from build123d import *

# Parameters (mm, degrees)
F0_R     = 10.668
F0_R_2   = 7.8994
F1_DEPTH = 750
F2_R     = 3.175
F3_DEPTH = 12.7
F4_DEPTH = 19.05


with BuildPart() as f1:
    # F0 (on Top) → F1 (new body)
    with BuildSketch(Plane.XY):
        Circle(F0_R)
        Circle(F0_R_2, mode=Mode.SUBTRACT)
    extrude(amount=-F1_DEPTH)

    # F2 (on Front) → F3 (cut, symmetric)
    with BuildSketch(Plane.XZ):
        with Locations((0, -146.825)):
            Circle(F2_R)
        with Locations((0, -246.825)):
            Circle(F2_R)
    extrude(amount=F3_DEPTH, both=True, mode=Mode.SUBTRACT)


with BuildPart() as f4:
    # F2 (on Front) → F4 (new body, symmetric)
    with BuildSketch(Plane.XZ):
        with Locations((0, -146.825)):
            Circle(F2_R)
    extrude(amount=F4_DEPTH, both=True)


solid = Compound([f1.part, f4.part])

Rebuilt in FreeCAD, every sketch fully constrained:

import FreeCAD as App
import Part
import Sketcher
from FreeCAD import Vector
Q = App.Units.Quantity

doc = App.newDocument("Part")
body = doc.addObject("PartDesign::Body", "Body")

# Sketch on XY plane
sketch1 = body.newObject("Sketcher::SketchObject", "Sketch")
sketch1.AttachmentSupport = (doc.getObject("XY_Plane"), [""])
sketch1.MapMode = "FlatFace"
sketch1.addGeometry([
    Part.Circle(Vector(0, 0, 0), Vector(0, 0, 1), 11),
    Part.Circle(Vector(0, 0, 0), Vector(0, 0, 1), 8),
], False)
sketch1.addConstraint([
    Sketcher.Constraint("Coincident", 0, 3, -1, 1),
    Sketcher.Constraint("Coincident", 1, 3, -1, 1),
    Sketcher.Constraint("Diameter", 0, Q("0.84 in")),
    Sketcher.Constraint("Diameter", 1, Q("0.622 in")),
])
pad1 = body.newObject("PartDesign::Pad", "Pad")
pad1.Profile = sketch1
pad1.Length = 750
pad1.Reversed = True

# Sketch on XZ plane
sketch2 = body.newObject("Sketcher::SketchObject", "Sketch001")
sketch2.AttachmentSupport = (doc.getObject("XZ_Plane"), [""])
sketch2.MapMode = "FlatFace"
sketch2.addGeometry([
    Part.Circle(Vector(0, -146.8, 0), Vector(0, 0, 1), 3.2),
    Part.Circle(Vector(0, -246.8, 0), Vector(0, 0, 1), 3.2),
], False)
sketch2.addConstraint([
    Sketcher.Constraint("Equal", 0, 1),
    Sketcher.Constraint("PointOnObject", 0, 3, -2),
    Sketcher.Constraint("PointOnObject", 1, 3, -2),
    Sketcher.Constraint("Diameter", 0, Q("0.25 in")),
    Sketcher.Constraint("DistanceY", 0, 3, -1, 1, Q("146.825 mm")),
    Sketcher.Constraint("DistanceY", 1, 3, -1, 1, Q("246.825 mm")),
])
pocket1 = body.newObject("PartDesign::Pocket", "Pocket")
pocket1.Profile = sketch2
pocket1.Length = Q("1 in")
pocket1.Midplane = True
body2 = doc.addObject("PartDesign::Body", "Body001")

# Sketch on XZ plane
sketch3 = body2.newObject("Sketcher::SketchObject", "Sketch002")
sketch3.AttachmentSupport = (doc.getObject("XZ_Plane001"), [""])
sketch3.MapMode = "FlatFace"
sketch3.addGeometry(Part.Circle(Vector(0, -146.8, 0), Vector(0, 0, 1), 3.2), False)
sketch3.addConstraint([
    Sketcher.Constraint("PointOnObject", 0, 3, -2),
    Sketcher.Constraint("Diameter", 0, Q("0.25 in")),
    Sketcher.Constraint("DistanceY", 0, 3, -1, 1, Q("146.825 mm")),
])
pad2 = body2.newObject("PartDesign::Pad", "Pad001")
pad2.Profile = sketch3
pad2.Length = Q("1.5 in")
pad2.Midplane = True

doc.recompute()
